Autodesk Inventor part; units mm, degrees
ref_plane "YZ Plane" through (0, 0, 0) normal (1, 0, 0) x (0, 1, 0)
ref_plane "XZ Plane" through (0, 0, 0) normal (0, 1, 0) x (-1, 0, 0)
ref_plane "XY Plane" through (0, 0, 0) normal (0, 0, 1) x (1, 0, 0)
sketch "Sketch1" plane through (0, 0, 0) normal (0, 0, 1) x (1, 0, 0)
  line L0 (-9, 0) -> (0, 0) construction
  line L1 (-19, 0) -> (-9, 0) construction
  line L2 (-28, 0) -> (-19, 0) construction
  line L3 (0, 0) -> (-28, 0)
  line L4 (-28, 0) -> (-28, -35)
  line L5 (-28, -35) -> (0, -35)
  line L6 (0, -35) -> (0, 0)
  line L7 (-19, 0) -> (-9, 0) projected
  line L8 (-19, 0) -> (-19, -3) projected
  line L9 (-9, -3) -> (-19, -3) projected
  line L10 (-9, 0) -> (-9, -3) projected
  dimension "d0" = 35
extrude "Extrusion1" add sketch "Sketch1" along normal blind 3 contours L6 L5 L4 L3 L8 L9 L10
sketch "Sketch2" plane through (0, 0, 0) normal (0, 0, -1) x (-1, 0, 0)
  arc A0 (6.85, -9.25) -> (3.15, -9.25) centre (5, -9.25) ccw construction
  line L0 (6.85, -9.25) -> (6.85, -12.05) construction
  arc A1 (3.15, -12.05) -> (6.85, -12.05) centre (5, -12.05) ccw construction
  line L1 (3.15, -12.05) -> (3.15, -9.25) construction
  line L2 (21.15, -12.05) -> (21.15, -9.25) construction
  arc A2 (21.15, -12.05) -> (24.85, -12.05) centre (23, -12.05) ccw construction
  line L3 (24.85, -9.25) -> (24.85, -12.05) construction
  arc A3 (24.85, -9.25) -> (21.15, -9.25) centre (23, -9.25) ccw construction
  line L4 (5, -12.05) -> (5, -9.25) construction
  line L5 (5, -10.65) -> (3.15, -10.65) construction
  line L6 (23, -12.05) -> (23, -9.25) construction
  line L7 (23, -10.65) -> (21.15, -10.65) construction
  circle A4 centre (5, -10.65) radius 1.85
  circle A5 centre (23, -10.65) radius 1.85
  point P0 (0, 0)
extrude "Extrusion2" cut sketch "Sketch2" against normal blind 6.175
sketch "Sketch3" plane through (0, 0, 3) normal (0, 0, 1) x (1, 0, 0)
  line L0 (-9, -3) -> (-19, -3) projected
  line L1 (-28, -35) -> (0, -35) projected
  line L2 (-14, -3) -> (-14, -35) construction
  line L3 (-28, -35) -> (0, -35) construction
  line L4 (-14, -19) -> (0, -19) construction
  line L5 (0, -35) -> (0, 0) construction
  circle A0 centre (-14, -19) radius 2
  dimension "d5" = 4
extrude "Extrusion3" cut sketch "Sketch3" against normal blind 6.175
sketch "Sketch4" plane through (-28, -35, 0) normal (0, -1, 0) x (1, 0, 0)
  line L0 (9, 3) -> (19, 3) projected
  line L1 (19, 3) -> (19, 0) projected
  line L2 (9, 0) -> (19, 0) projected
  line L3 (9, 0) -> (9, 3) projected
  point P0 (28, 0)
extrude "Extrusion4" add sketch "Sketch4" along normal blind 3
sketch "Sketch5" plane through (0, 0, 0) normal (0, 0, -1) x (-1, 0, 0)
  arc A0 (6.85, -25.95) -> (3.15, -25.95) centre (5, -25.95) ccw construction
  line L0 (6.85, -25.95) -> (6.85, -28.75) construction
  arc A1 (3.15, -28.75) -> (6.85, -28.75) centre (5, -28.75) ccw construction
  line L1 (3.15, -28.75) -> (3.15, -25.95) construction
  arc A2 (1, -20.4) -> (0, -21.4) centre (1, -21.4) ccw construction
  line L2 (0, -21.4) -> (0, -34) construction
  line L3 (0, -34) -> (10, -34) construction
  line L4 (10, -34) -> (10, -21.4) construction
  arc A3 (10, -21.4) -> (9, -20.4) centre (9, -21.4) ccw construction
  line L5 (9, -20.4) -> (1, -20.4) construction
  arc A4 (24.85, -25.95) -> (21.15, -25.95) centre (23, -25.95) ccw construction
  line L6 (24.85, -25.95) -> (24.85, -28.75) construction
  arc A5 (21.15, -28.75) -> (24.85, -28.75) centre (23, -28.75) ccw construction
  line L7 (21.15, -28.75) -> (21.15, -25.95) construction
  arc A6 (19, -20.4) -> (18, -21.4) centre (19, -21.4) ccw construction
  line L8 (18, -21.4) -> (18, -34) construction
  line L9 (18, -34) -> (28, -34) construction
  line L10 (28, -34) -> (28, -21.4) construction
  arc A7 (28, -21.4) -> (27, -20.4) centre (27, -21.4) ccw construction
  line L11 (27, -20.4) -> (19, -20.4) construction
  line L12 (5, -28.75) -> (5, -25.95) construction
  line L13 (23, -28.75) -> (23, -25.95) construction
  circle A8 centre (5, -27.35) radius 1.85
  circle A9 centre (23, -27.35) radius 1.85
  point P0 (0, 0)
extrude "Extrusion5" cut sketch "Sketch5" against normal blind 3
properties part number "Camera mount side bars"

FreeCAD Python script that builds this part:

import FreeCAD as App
import Part
import Sketcher
from FreeCAD import Vector
Q = App.Units.Quantity

doc = App.newDocument("Part")
body = doc.addObject("PartDesign::Body", "Body")

sketch1 = doc.addObject("Sketcher::SketchObject", "Sketch")
body.addObject(sketch1)
sketch1.AttachmentSupport = (doc.XY_Plane, [""])
sketch1.MapMode = "FlatFace"
sketch1.addGeometry(Part.LineSegment(Vector(0, -35, 0), Vector(0, 0, 0)), False)
sketch1.addGeometry(Part.LineSegment(Vector(0, 0, 0), Vector(-9, 0, 0)), False)
sketch1.addGeometry(Part.LineSegment(Vector(-9, 0, 0), Vector(-9, -3, 0)), False)
sketch1.addGeometry(Part.LineSegment(Vector(-9, -3, 0), Vector(-19, -3, 0)), False)
sketch1.addGeometry(Part.LineSegment(Vector(-19, -3, 0), Vector(-19, 0, 0)), False)
sketch1.addGeometry(Part.LineSegment(Vector(-19, 0, 0), Vector(-28, 0, 0)), False)
sketch1.addGeometry(Part.LineSegment(Vector(-28, 0, 0), Vector(-28, -35, 0)), False)
sketch1.addGeometry(Part.LineSegment(Vector(-28, -35, 0), Vector(0, -35, 0)), False)
sketch1.addConstraint(Sketcher.Constraint("Coincident", 0, 2, 1, 1))
sketch1.addConstraint(Sketcher.Constraint("Coincident", 1, 2, 2, 1))
sketch1.addConstraint(Sketcher.Constraint("Coincident", 2, 2, 3, 1))
sketch1.addConstraint(Sketcher.Constraint("Coincident", 3, 2, 4, 1))
sketch1.addConstraint(Sketcher.Constraint("Coincident", 4, 2, 5, 1))
sketch1.addConstraint(Sketcher.Constraint("Coincident", 5, 2, 6, 1))
sketch1.addConstraint(Sketcher.Constraint("Coincident", 6, 2, 7, 1))
sketch1.addConstraint(Sketcher.Constraint("Coincident", 7, 2, 0, 1))
sketch1.addConstraint(Sketcher.Constraint("Vertical", 0))
sketch1.addConstraint(Sketcher.Constraint("Horizontal", 1))
sketch1.addConstraint(Sketcher.Constraint("Vertical", 2))
sketch1.addConstraint(Sketcher.Constraint("Horizontal", 3))
sketch1.addConstraint(Sketcher.Constraint("Vertical", 4))
sketch1.addConstraint(Sketcher.Constraint("Horizontal", 5))
sketch1.addConstraint(Sketcher.Constraint("Vertical", 6))
sketch1.addConstraint(Sketcher.Constraint("Horizontal", 7))
sketch1.addConstraint(Sketcher.Constraint("Coincident", 0, 2, -1, 1))
sketch1.addConstraint(Sketcher.Constraint("PointOnObject", 4, 2, -1))
sketch1.addConstraint(Sketcher.Constraint("Equal", 1, 5))
sketch1.addConstraint(Sketcher.Constraint("DistanceY", 0, 1, 0, 2, Q("35 mm")))
sketch1.addConstraint(Sketcher.Constraint("DistanceX", 1, 2, 1, 1, Q("9 mm")))
sketch1.addConstraint(Sketcher.Constraint("DistanceX", 3, 2, 3, 1, Q("10 mm")))
sketch1.addConstraint(Sketcher.Constraint("DistanceY", 2, 2, 2, 1, Q("3 mm")))
pad1 = doc.addObject("PartDesign::Pad", "Pad")
body.addObject(pad1)
pad1.Profile = sketch1
pad1.Length = 3

sketch2 = doc.addObject("Sketcher::SketchObject", "Sketch001")
body.addObject(sketch2)
sketch2.AttachmentSupport = (doc.XY_Plane, [""])
sketch2.MapMode = "FlatFace"
sketch2.addGeometry(Part.Circle(Vector(-5, -10.7, 0), Vector(0, 0, 1), 1.9), False)
sketch2.addGeometry(Part.Circle(Vector(-23, -10.7, 0), Vector(0, 0, 1), 1.9), False)
sketch2.addConstraint(Sketcher.Constraint("Equal", 0, 1))
sketch2.addConstraint(Sketcher.Constraint("Horizontal", 0, 3, 1, 3))
sketch2.addConstraint(Sketcher.Constraint("Diameter", 0, Q("3.7 mm")))
sketch2.addConstraint(Sketcher.Constraint("DistanceX", 0, 3, -1, 1, Q("5 mm")))
sketch2.addConstraint(Sketcher.Constraint("DistanceX", 1, 3, -1, 1, Q("23 mm")))
sketch2.addConstraint(Sketcher.Constraint("DistanceY", 0, 3, -1, 1, Q("10.65 mm")))
pocket1 = doc.addObject("PartDesign::Pocket", "Pocket")
body.addObject(pocket1)
pocket1.Profile = sketch2
pocket1.Length = 6.175
pocket1.Reversed = True

sketch3 = doc.addObject("Sketcher::SketchObject", "Sketch002")
body.addObject(sketch3)
sketch3.AttachmentSupport = (doc.XY_Plane, [""])
sketch3.MapMode = "FlatFace"
sketch3.AttachmentOffset = App.Placement(Vector(0, 0, 3), App.Rotation())
sketch3.addGeometry(Part.Circle(Vector(-14, -19, 0), Vector(0, 0, 1), 2), False)
sketch3.addConstraint(Sketcher.Constraint("Diameter", 0, Q("4 mm")))
sketch3.addConstraint(Sketcher.Constraint("DistanceX", 0, 3, -1, 1, Q("14 mm")))
sketch3.addConstraint(Sketcher.Constraint("DistanceY", 0, 3, -1, 1, Q("19 mm")))
pocket2 = doc.addObject("PartDesign::Pocket", "Pocket001")
body.addObject(pocket2)
pocket2.Profile = sketch3
pocket2.Length = 6.175

sketch4 = doc.addObject("Sketcher::SketchObject", "Sketch003")
body.addObject(sketch4)
sketch4.AttachmentSupport = (doc.XZ_Plane, [""])
sketch4.MapMode = "FlatFace"
sketch4.AttachmentOffset = App.Placement(Vector(0, 0, 35), App.Rotation())
sketch4.addGeometry(Part.LineSegment(Vector(-9, 3, 0), Vector(-19, 3, 0)), False)
sketch4.addGeometry(Part.LineSegment(Vector(-19, 3, 0), Vector(-19, 0, 0)), False)
sketch4.addGeometry(Part.LineSegment(Vector(-19, 0, 0), Vector(-9, 0, 0)), False)
sketch4.addGeometry(Part.LineSegment(Vector(-9, 0, 0), Vector(-9, 3, 0)), False)
sketch4.addConstraint(Sketcher.Constraint("Coincident", 0, 2, 1, 1))
sketch4.addConstraint(Sketcher.Constraint("Coincident", 1, 2, 2, 1))
sketch4.addConstraint(Sketcher.Constraint("Coincident", 2, 2, 3, 1))
sketch4.addConstraint(Sketcher.Constraint("Coincident", 3, 2, 0, 1))
sketch4.addConstraint(Sketcher.Constraint("Horizontal", 0))
sketch4.addConstraint(Sketcher.Constraint("Vertical", 1))
sketch4.addConstraint(Sketcher.Constraint("Horizontal", 2))
sketch4.addConstraint(Sketcher.Constraint("Vertical", 3))
sketch4.addConstraint(Sketcher.Constraint("PointOnObject", 1, 2, -1))
sketch4.addConstraint(Sketcher.Constraint("DistanceX", 0, 2, 0, 1, Q("10 mm")))
sketch4.addConstraint(Sketcher.Constraint("DistanceY", 1, 2, 1, 1, Q("3 mm")))
sketch4.addConstraint(Sketcher.Constraint("DistanceX", 0, 2, -1, 1, Q("19 mm")))
pad2 = doc.addObject("PartDesign::Pad", "Pad001")
body.addObject(pad2)
pad2.Profile = sketch4
pad2.Length = 3

sketch5 = doc.addObject("Sketcher::SketchObject", "Sketch004")
body.addObject(sketch5)
sketch5.AttachmentSupport = (doc.XY_Plane, [""])
sketch5.MapMode = "FlatFace"
sketch5.addGeometry(Part.Circle(Vector(-5, -27.4, 0), Vector(0, 0, 1), 1.9), False)
sketch5.addGeometry(Part.Circle(Vector(-23, -27.4, 0), Vector(0, 0, 1), 1.9), False)
sketch5.addConstraint(Sketcher.Constraint("Equal", 0, 1))
sketch5.addConstraint(Sketcher.Constraint("Horizontal", 0, 3, 1, 3))
sketch5.addConstraint(Sketcher.Constraint("Diameter", 0, Q("3.7 mm")))
sketch5.addConstraint(Sketcher.Constraint("DistanceX", 0, 3, -1, 1, Q("5 mm")))
sketch5.addConstraint(Sketcher.Constraint("DistanceX", 1, 3, -1, 1, Q("23 mm")))
sketch5.addConstraint(Sketcher.Constraint("DistanceY", 0, 3, -1, 1, Q("27.35 mm")))
pocket3 = doc.addObject("PartDesign::Pocket", "Pocket002")
body.addObject(pocket3)
pocket3.Profile = sketch5
pocket3.Length = 3
pocket3.Reversed = True

doc.recompute()
